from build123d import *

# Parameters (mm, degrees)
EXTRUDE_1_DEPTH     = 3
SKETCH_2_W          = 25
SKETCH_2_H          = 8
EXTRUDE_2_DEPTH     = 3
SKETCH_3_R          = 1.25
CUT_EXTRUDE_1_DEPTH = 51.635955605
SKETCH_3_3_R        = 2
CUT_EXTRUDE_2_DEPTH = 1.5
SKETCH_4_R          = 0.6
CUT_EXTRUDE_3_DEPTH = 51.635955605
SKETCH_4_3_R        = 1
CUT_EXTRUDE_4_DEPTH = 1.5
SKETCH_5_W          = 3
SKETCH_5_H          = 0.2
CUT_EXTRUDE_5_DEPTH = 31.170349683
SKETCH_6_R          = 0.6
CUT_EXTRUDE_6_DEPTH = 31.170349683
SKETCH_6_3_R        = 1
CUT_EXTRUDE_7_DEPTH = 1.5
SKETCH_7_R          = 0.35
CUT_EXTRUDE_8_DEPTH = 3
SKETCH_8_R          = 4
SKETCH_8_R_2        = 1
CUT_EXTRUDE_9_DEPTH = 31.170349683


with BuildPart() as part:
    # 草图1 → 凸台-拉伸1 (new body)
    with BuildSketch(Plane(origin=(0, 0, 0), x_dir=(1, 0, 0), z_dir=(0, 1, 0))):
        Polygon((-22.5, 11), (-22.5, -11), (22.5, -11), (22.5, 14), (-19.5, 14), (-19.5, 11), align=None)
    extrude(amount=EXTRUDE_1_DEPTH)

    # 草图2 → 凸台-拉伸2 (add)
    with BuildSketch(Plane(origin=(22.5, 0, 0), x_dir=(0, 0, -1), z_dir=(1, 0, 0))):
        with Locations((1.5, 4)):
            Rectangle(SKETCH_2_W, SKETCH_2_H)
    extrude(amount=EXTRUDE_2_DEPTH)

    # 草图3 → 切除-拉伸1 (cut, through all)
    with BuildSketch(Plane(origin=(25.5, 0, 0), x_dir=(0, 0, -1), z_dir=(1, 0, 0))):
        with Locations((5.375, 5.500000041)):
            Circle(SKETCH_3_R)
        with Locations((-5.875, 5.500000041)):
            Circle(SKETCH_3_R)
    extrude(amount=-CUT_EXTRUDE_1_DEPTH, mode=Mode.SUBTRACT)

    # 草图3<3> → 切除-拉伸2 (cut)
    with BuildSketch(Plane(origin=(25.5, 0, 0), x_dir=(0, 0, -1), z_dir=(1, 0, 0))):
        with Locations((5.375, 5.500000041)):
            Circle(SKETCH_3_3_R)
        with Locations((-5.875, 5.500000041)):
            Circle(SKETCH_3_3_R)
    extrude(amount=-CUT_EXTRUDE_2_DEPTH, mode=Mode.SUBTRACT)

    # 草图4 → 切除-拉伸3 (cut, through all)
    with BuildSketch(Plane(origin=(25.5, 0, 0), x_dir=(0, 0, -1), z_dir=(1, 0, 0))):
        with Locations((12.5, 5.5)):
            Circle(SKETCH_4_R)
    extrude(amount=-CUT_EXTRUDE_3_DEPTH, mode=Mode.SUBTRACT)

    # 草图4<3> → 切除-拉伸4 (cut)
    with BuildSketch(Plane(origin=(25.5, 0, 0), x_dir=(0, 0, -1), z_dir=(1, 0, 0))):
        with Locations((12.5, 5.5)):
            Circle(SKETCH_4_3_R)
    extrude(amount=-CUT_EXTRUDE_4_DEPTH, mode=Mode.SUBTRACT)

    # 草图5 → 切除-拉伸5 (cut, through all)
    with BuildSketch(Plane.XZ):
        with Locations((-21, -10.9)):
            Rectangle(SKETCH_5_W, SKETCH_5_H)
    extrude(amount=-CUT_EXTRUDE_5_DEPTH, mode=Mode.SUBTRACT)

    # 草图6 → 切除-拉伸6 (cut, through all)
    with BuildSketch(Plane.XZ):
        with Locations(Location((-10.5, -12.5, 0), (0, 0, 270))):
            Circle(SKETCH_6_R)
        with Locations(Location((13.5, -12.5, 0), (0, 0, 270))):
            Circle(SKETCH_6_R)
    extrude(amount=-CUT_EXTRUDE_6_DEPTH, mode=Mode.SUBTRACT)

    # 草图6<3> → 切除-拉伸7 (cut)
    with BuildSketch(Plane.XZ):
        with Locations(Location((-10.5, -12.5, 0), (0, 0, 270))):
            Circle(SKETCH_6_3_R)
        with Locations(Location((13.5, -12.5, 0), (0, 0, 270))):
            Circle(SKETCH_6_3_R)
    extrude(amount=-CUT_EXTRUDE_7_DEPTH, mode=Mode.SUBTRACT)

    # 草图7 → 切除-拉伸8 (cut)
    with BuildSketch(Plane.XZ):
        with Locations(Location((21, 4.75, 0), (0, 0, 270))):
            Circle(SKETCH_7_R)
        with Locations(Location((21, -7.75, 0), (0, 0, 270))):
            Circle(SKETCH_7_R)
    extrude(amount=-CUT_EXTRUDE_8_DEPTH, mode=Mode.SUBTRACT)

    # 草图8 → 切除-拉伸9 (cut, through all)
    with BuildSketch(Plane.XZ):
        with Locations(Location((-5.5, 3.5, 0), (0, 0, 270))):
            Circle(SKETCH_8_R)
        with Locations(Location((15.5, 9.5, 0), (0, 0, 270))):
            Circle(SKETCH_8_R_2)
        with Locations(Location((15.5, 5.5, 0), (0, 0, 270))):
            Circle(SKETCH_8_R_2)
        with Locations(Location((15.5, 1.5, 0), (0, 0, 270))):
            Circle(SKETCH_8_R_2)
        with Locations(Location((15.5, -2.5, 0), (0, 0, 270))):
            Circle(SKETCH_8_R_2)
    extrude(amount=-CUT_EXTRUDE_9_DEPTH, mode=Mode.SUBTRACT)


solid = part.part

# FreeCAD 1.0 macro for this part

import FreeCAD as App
import Part
import Sketcher
Q = App.Units.Quantity


def add_polygon(sketch, points):
    """Adds a closed chain of lines whose ends are joined by coincident constraints."""
    first, n = sketch.GeometryCount, len(points)
    for a, b in zip(points, points[1:] + points[:1]):
        sketch.addGeometry(Part.LineSegment(App.Vector(*a, 0), App.Vector(*b, 0)), False)
    for i in range(n):
        sketch.addConstraint(Sketcher.Constraint("Coincident", first + i, 2, first + (i + 1) % n, 1))

doc = App.newDocument("Part")
body = doc.addObject("PartDesign::Body", "Body")

# Sketch on XZ plane
sketch1 = body.newObject("Sketcher::SketchObject", "Sketch")
sketch1.AttachmentSupport = (doc.getObject("XZ_Plane"), [""])
sketch1.MapMode = "FlatFace"
add_polygon(sketch1, [(-22.5, -11), (-22.5, 11), (22.5, 11), (22.5, -14), (-19.5, -14), (-19.5, -11)])  # lines 0-5
sketch1.addConstraint(Sketcher.Constraint("Vertical", 0))
sketch1.addConstraint(Sketcher.Constraint("Horizontal", 1))
sketch1.addConstraint(Sketcher.Constraint("Vertical", 2))
sketch1.addConstraint(Sketcher.Constraint("Horizontal", 3))
sketch1.addConstraint(Sketcher.Constraint("Vertical", 4))
sketch1.addConstraint(Sketcher.Constraint("Horizontal", 5))
sketch1.addConstraint(Sketcher.Constraint("Symmetric", 1, 2, 5, 2, -1, 1))
sketch1.addConstraint(Sketcher.Constraint("Equal", 5, 4))
sketch1.addConstraint(Sketcher.Constraint("DistanceX", 1, 1, 1, 2, Q("45 mm")))
sketch1.addConstraint(Sketcher.Constraint("DistanceX", 3, 2, 3, 1, Q("42 mm")))
sketch1.addConstraint(Sketcher.Constraint("DistanceY", 0, 1, 0, 2, Q("22 mm")))
pad1 = body.newObject("PartDesign::Pad", "Pad")
pad1.Profile = sketch1
pad1.Length = 3
pad1.Reversed = True

# Sketch on YZ plane
sketch2 = body.newObject("Sketcher::SketchObject", "Sketch001")
sketch2.AttachmentSupport = (doc.getObject("YZ_Plane"), [""])
sketch2.MapMode = "FlatFace"
sketch2.AttachmentOffset = App.Placement(App.Vector(0, 0, 22.5), App.Rotation())
add_polygon(sketch2, [(8, 11), (0, 11), (0, -14), (8, -14)])  # lines 0-3
sketch2.addConstraint(Sketcher.Constraint("Horizontal", 0))
sketch2.addConstraint(Sketcher.Constraint("Vertical", 1))
sketch2.addConstraint(Sketcher.Constraint("Horizontal", 2))
sketch2.addConstraint(Sketcher.Constraint("Vertical", 3))
sketch2.addConstraint(Sketcher.Constraint("PointOnObject", 0, 2, -2))
sketch2.addConstraint(Sketcher.Constraint("DistanceX", 0, 2, 0, 1, Q("8 mm")))
sketch2.addConstraint(Sketcher.Constraint("DistanceY", 1, 2, 1, 1, Q("25 mm")))
sketch2.addConstraint(Sketcher.Constraint("DistanceY", -1, 1, 0, 2, Q("11 mm")))
pad2 = body.newObject("PartDesign::Pad", "Pad001")
pad2.Profile = sketch2
pad2.Length = 3

# Sketch on YZ plane
sketch3 = body.newObject("Sketcher::SketchObject", "Sketch002")
sketch3.AttachmentSupport = (doc.getObject("YZ_Plane"), [""])
sketch3.MapMode = "FlatFace"
sketch3.AttachmentOffset = App.Placement(App.Vector(0, 0, 25.5), App.Rotation())
sketch3.addGeometry(Part.Circle(App.Vector(5.5, -5.4, 0), App.Vector(0, 0, 1), 1.2), False)
sketch3.addGeometry(Part.Circle(App.Vector(5.5, 5.9, 0), App.Vector(0, 0, 1), 1.2), False)
sketch3.addConstraint(Sketcher.Constraint("Equal", 0, 1))
sketch3.addConstraint(Sketcher.Constraint("Vertical", 0, 3, 1, 3))
sketch3.addConstraint(Sketcher.Constraint("Diameter", 0, Q("2.5 mm")))
sketch3.addConstraint(Sketcher.Constraint("DistanceX", -1, 1, 0, 3, Q("5.5 mm")))
sketch3.addConstraint(Sketcher.Constraint("DistanceY", 0, 3, 1, 3, Q("11.25 mm")))
sketch3.addConstraint(Sketcher.Constraint("DistanceY", 0, 3, -1, 1, Q("5.375 mm")))
pocket1 = body.newObject("PartDesign::Pocket", "Pocket")
pocket1.Profile = sketch3
pocket1.Type = "ThroughAll"

# Sketch on YZ plane
sketch4 = body.newObject("Sketcher::SketchObject", "Sketch003")
sketch4.AttachmentSupport = (doc.getObject("YZ_Plane"), [""])
sketch4.MapMode = "FlatFace"
sketch4.AttachmentOffset = App.Placement(App.Vector(0, 0, 25.5), App.Rotation())
sketch4.addGeometry(Part.Circle(App.Vector(5.5, -5.4, 0), App.Vector(0, 0, 1), 2), False)
sketch4.addGeometry(Part.Circle(App.Vector(5.5, 5.9, 0), App.Vector(0, 0, 1), 2), False)
sketch4.addConstraint(Sketcher.Constraint("Equal", 0, 1))
sketch4.addConstraint(Sketcher.Constraint("Vertical", 0, 3, 1, 3))
sketch4.addConstraint(Sketcher.Constraint("Diameter", 0, Q("4 mm")))
sketch4.addConstraint(Sketcher.Constraint("DistanceX", -1, 1, 0, 3, Q("5.5 mm")))
sketch4.addConstraint(Sketcher.Constraint("DistanceY", 0, 3, 1, 3, Q("11.25 mm")))
sketch4.addConstraint(Sketcher.Constraint("DistanceY", 0, 3, -1, 1, Q("5.375 mm")))
pocket2 = body.newObject("PartDesign::Pocket", "Pocket001")
pocket2.Profile = sketch4
pocket2.Length = 1.5

# Sketch on YZ plane
sketch5 = body.newObject("Sketcher::SketchObject", "Sketch004")
sketch5.AttachmentSupport = (doc.getObject("YZ_Plane"), [""])
sketch5.MapMode = "FlatFace"
sketch5.AttachmentOffset = App.Placement(App.Vector(0, 0, 25.5), App.Rotation())
sketch5.addGeometry(Part.Circle(App.Vector(5.5, -12.5, 0), App.Vector(0, 0, 1), 0.6), False)
sketch5.addConstraint(Sketcher.Constraint("Diameter", 0, Q("1.2 mm")))
sketch5.addConstraint(Sketcher.Constraint("DistanceX", -1, 1, 0, 3, Q("5.5 mm")))
sketch5.addConstraint(Sketcher.Constraint("DistanceY", 0, 3, -1, 1, Q("12.5 mm")))
pocket3 = body.newObject("PartDesign::Pocket", "Pocket002")
pocket3.Profile = sketch5
pocket3.Type = "ThroughAll"

# Sketch on YZ plane
sketch6 = body.newObject("Sketcher::SketchObject", "Sketch005")
sketch6.AttachmentSupport = (doc.getObject("YZ_Plane"), [""])
sketch6.MapMode = "FlatFace"
sketch6.AttachmentOffset = App.Placement(App.Vector(0, 0, 25.5), App.Rotation())
sketch6.addGeometry(Part.Circle(App.Vector(5.5, -12.5, 0), App.Vector(0, 0, 1), 1), False)
sketch6.addConstraint(Sketcher.Constraint("Diameter", 0, Q("2 mm")))
sketch6.addConstraint(Sketcher.Constraint("DistanceX", -1, 1, 0, 3, Q("5.5 mm")))
sketch6.addConstraint(Sketcher.Constraint("DistanceY", 0, 3, -1, 1, Q("12.5 mm")))
pocket4 = body.newObject("PartDesign::Pocket", "Pocket003")
pocket4.Profile = sketch6
pocket4.Length = 1.5

# Sketch on XZ plane
sketch7 = body.newObject("Sketcher::SketchObject", "Sketch006")
sketch7.AttachmentSupport = (doc.getObject("XZ_Plane"), [""])
sketch7.MapMode = "FlatFace"
add_polygon(sketch7, [(-22.5, -10.8), (-22.5, -11), (-19.5, -11), (-19.5, -10.8)])  # lines 0-3
sketch7.addConstraint(Sketcher.Constraint("Vertical", 0))
sketch7.addConstraint(Sketcher.Constraint("Horizontal", 1))
sketch7.addConstraint(Sketcher.Constraint("Vertical", 2))
sketch7.addConstraint(Sketcher.Constraint("Horizontal", 3))
sketch7.addConstraint(Sketcher.Constraint("DistanceX", 1, 1, 1, 2, Q("3 mm")))
sketch7.addConstraint(Sketcher.Constraint("DistanceY", 0, 2, 0, 1, Q("0.2 mm")))
sketch7.addConstraint(Sketcher.Constraint("DistanceY", 0, 2, -1, 1, Q("11 mm")))
sketch7.addConstraint(Sketcher.Constraint("DistanceX", 0, 2, -1, 1, Q("22.5 mm")))
pocket5 = body.newObject("PartDesign::Pocket", "Pocket004")
pocket5.Profile = sketch7
pocket5.Type = "ThroughAll"

# Sketch on XZ plane
sketch8 = body.newObject("Sketcher::SketchObject", "Sketch007")
sketch8.AttachmentSupport = (doc.getObject("XZ_Plane"), [""])
sketch8.MapMode = "FlatFace"
sketch8.addGeometry(Part.Circle(App.Vector(-10.5, -12.5, 0), App.Vector(0, 0, 1), 0.6), False)
sketch8.addGeometry(Part.Circle(App.Vector(13.5, -12.5, 0), App.Vector(0, 0, 1), 0.6), False)
sketch8.addConstraint(Sketcher.Constraint("Equal", 0, 1))
sketch8.addConstraint(Sketcher.Constraint("Horizontal", 0, 3, 1, 3))
sketch8.addConstraint(Sketcher.Constraint("Diameter", 0, Q("1.2 mm")))
sketch8.addConstraint(Sketcher.Constraint("DistanceX", 0, 3, 1, 3, Q("24 mm")))
sketch8.addConstraint(Sketcher.Constraint("DistanceX", 0, 3, -1, 1, Q("10.5 mm")))
sketch8.addConstraint(Sketcher.Constraint("DistanceY", 0, 3, -1, 1, Q("12.5 mm")))
pocket6 = body.newObject("PartDesign::Pocket", "Pocket005")
pocket6.Profile = sketch8
pocket6.Type = "ThroughAll"

# Sketch on XZ plane
sketch9 = body.newObject("Sketcher::SketchObject", "Sketch008")
sketch9.AttachmentSupport = (doc.getObject("XZ_Plane"), [""])
sketch9.MapMode = "FlatFace"
sketch9.addGeometry(Part.Circle(App.Vector(-10.5, -12.5, 0), App.Vector(0, 0, 1), 1), False)
sketch9.addGeometry(Part.Circle(App.Vector(13.5, -12.5, 0), App.Vector(0, 0, 1), 1), False)
sketch9.addConstraint(Sketcher.Constraint("Equal", 0, 1))
sketch9.addConstraint(Sketcher.Constraint("Horizontal", 0, 3, 1, 3))
sketch9.addConstraint(Sketcher.Constraint("Diameter", 0, Q("2 mm")))
sketch9.addConstraint(Sketcher.Constraint("DistanceX", 0, 3, 1, 3, Q("24 mm")))
sketch9.addConstraint(Sketcher.Constraint("DistanceX", 0, 3, -1, 1, Q("10.5 mm")))
sketch9.addConstraint(Sketcher.Constraint("DistanceY", 0, 3, -1, 1, Q("12.5 mm")))
pocket7 = body.newObject("PartDesign::Pocket", "Pocket006")
pocket7.Profile = sketch9
pocket7.Length = 1.5

# Sketch on XZ plane
sketch10 = body.newObject("Sketcher::SketchObject", "Sketch009")
sketch10.AttachmentSupport = (doc.getObject("XZ_Plane"), [""])
sketch10.MapMode = "FlatFace"
sketch10.addGeometry(Part.Circle(App.Vector(21, 4.75, 0), App.Vector(0, 0, 1), 0.35), False)
sketch10.addGeometry(Part.Circle(App.Vector(21, -7.75, 0), App.Vector(0, 0, 1), 0.35), False)
sketch10.addConstraint(Sketcher.Constraint("Equal", 0, 1))
sketch10.addConstraint(Sketcher.Constraint("Vertical", 0, 3, 1, 3))
sketch10.addConstraint(Sketcher.Constraint("Diameter", 0, Q("0.7 mm")))
sketch10.addConstraint(Sketcher.Constraint("DistanceX", -1, 1, 0, 3, Q("21 mm")))
sketch10.addConstraint(Sketcher.Constraint("DistanceY", 1, 3, 0, 3, Q("12.5 mm")))
sketch10.addConstraint(Sketcher.Constraint("DistanceY", -1, 1, 0, 3, Q("4.75 mm")))
pocket8 = body.newObject("PartDesign::Pocket", "Pocket007")
pocket8.Profile = sketch10
pocket8.Length = 3

# Sketch on XZ plane
sketch11 = body.newObject("Sketcher::SketchObject", "Sketch010")
sketch11.AttachmentSupport = (doc.getObject("XZ_Plane"), [""])
sketch11.MapMode = "FlatFace"
sketch11.addGeometry(Part.Circle(App.Vector(-5.5, 3.5, 0), App.Vector(0, 0, 1), 4), False)
sketch11.addGeometry(Part.Circle(App.Vector(15.5, 9.5, 0), App.Vector(0, 0, 1), 1), False)
sketch11.addGeometry(Part.Circle(App.Vector(15.5, 5.5, 0), App.Vector(0, 0, 1), 1), False)
sketch11.addGeometry(Part.Circle(App.Vector(15.5, 1.5, 0), App.Vector(0, 0, 1), 1), False)
sketch11.addGeometry(Part.Circle(App.Vector(15.5, -2.5, 0), App.Vector(0, 0, 1), 1), False)
sketch11.addConstraint(Sketcher.Constraint("Equal", 1, 2))
sketch11.addConstraint(Sketcher.Constraint("Equal", 2, 3))
sketch11.addConstraint(Sketcher.Constraint("Equal", 3, 4))
sketch11.addConstraint(Sketcher.Constraint("Vertical", 1, 3, 2, 3))
sketch11.addConstraint(Sketcher.Constraint("Vertical", 2, 3, 3, 3))
sketch11.addConstraint(Sketcher.Constraint("Vertical", 3, 3, 4, 3))
sketch11.addConstraint(Sketcher.Constraint("Diameter", 0, Q("8 mm")))
sketch11.addConstraint(Sketcher.Constraint("Diameter", 1, Q("2 mm")))
sketch11.addConstraint(Sketcher.Constraint("DistanceX", 0, 3, 1, 3, Q("21 mm")))
sketch11.addConstraint(Sketcher.Constraint("DistanceY", 0, 3, 1, 3, Q("6 mm")))
sketch11.addConstraint(Sketcher.Constraint("DistanceY", 2, 3, 1, 3, Q("4 mm")))
sketch11.addConstraint(Sketcher.Constraint("DistanceY", 3, 3, 2, 3, Q("4 mm")))
sketch11.addConstraint(Sketcher.Constraint("DistanceY", 4, 3, 3, 3, Q("4 mm")))
sketch11.addConstraint(Sketcher.Constraint("DistanceX", 0, 3, -1, 1, Q("5.5 mm")))
sketch11.addConstraint(Sketcher.Constraint("DistanceY", -1, 1, 0, 3, Q("3.5 mm")))
pocket9 = body.newObject("PartDesign::Pocket", "Pocket008")
pocket9.Profile = sketch11
pocket9.Type = "ThroughAll"

doc.recompute()
